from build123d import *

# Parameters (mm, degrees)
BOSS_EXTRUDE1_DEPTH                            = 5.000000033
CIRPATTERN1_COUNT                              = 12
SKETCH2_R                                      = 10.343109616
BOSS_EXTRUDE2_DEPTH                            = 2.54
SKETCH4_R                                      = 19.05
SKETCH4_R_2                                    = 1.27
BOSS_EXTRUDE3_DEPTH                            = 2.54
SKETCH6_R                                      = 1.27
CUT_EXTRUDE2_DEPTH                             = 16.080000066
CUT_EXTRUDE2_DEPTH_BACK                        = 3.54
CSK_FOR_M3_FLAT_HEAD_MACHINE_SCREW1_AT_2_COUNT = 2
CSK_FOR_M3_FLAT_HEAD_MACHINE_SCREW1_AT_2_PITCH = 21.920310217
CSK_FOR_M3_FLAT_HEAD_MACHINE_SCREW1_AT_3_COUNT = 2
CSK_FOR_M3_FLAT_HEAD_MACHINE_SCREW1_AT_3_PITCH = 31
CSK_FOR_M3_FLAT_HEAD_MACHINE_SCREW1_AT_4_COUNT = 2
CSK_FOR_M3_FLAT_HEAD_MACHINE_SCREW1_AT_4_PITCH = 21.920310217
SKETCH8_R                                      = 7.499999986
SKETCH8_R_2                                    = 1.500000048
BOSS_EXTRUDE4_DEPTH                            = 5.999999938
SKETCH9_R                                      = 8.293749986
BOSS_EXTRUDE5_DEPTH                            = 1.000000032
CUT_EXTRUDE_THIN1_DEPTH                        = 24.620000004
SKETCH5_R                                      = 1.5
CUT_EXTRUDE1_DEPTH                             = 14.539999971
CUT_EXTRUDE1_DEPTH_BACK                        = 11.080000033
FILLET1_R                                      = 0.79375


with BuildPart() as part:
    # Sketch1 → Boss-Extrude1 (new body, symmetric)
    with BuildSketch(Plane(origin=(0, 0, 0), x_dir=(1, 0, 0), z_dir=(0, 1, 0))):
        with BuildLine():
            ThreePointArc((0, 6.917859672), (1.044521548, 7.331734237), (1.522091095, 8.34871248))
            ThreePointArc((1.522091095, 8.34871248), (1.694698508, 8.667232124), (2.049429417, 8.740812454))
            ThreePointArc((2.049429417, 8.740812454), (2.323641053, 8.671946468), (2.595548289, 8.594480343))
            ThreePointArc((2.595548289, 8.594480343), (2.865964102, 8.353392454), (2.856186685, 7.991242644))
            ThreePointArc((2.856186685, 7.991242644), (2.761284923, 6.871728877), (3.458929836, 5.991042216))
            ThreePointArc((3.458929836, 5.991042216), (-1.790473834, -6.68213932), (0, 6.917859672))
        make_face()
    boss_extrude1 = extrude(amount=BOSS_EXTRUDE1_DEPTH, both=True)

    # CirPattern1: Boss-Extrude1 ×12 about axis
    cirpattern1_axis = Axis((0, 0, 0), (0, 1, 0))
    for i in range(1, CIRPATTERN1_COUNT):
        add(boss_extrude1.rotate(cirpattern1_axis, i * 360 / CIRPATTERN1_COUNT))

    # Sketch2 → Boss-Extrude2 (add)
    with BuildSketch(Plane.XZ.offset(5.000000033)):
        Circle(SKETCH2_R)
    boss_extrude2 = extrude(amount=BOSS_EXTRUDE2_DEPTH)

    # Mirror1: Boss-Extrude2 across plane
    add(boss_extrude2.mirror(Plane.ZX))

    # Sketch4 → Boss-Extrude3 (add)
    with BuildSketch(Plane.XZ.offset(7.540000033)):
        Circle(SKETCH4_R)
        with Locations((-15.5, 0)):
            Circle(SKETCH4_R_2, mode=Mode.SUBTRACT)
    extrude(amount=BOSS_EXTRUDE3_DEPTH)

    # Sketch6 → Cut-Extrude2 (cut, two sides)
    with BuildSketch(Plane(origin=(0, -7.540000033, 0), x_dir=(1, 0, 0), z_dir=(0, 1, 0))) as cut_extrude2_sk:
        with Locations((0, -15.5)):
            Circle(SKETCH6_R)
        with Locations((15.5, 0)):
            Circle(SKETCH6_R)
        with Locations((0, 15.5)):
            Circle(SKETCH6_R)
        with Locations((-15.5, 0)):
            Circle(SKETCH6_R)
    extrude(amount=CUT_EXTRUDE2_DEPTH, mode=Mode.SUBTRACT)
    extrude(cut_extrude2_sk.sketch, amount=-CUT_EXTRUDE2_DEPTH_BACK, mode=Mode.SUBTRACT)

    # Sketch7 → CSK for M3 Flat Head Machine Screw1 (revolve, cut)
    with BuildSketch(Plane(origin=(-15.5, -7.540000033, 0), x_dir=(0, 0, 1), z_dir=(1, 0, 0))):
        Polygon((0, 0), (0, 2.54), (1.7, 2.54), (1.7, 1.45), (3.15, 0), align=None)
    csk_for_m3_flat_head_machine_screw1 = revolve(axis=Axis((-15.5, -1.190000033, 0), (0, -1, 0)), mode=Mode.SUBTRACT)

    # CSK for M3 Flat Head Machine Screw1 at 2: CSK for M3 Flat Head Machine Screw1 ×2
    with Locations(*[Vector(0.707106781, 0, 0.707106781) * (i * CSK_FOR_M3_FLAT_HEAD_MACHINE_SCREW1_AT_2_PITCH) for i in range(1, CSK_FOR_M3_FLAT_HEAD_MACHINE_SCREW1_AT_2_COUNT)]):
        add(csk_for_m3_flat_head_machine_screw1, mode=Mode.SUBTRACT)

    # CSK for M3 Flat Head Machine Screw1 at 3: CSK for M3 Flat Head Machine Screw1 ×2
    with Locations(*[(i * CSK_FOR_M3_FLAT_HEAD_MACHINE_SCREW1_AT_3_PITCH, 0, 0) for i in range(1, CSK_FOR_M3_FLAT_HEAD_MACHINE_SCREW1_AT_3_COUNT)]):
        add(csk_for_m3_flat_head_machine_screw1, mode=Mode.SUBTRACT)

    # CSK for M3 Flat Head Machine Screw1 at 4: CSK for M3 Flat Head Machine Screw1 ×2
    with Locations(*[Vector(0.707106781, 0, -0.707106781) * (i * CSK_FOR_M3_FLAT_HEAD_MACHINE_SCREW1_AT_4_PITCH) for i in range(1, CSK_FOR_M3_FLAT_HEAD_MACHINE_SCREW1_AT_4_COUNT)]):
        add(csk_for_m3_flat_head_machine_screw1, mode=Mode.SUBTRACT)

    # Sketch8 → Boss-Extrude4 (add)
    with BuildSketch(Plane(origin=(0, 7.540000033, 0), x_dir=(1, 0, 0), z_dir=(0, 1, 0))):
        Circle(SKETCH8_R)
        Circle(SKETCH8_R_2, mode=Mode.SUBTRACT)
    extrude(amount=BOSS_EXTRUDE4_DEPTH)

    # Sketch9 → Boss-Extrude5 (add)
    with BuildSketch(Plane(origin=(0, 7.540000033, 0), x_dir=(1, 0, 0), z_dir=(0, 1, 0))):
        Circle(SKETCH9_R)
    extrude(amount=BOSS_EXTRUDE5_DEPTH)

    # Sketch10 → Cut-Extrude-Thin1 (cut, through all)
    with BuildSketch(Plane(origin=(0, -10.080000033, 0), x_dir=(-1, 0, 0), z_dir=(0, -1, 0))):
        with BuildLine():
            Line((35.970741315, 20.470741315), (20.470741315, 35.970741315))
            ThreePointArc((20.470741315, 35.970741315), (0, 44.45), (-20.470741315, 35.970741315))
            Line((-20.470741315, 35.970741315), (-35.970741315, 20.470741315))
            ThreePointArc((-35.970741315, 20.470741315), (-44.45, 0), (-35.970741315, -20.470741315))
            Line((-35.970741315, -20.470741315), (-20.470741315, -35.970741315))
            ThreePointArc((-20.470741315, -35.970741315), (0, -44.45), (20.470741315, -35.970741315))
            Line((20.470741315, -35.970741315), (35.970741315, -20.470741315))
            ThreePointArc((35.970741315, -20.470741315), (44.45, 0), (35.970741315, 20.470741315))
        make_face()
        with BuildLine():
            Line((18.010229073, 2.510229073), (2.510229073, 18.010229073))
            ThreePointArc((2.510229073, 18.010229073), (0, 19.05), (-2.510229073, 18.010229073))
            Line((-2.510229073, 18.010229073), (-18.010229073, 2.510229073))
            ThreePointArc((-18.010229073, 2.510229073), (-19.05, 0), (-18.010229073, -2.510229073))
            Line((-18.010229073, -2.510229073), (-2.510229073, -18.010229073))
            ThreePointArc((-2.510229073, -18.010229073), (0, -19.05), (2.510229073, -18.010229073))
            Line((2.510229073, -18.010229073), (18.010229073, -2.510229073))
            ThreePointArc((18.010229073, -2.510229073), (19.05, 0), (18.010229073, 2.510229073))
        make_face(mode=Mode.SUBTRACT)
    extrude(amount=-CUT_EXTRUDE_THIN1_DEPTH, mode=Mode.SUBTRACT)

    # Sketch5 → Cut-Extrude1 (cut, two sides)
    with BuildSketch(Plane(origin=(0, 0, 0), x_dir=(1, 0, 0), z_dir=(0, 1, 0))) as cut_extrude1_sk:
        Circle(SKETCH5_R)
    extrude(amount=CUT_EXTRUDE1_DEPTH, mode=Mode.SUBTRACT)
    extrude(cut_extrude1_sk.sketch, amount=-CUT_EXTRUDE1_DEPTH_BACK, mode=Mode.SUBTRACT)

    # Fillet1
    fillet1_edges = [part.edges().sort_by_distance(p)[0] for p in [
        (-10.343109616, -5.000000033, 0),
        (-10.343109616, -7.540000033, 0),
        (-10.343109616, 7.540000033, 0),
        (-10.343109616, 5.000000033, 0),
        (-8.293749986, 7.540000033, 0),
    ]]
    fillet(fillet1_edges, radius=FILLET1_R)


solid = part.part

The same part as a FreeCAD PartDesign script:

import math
import FreeCAD as App
import Part
import Sketcher
from FreeCAD import Vector
Q = App.Units.Quantity


def edges_at(feature, points):
    """Names of the edges that pass closest to the given points."""
    edges = feature.Shape.Edges
    near = lambda p: min(range(len(edges)), key=lambda i: edges[i].distToShape(Part.Vertex(*p))[0])
    return sorted({f"Edge{near(p) + 1}" for p in points})

doc = App.newDocument("Part")
body = doc.addObject("PartDesign::Body", "Body")

# Sketch on XZ plane
sketch1 = body.newObject("Sketcher::SketchObject", "Sketch")
sketch1.AttachmentSupport = (doc.getObject("XZ_Plane"), [""])
sketch1.MapMode = "FlatFace"
sketch1.addGeometry([
    Part.ArcOfCircle(Part.Circle(Vector(0, -8.44, 0), Vector(0, 0, 1), 1.52), math.radians(4), math.radians(90)),  # 0
    Part.ArcOfCircle(Part.Circle(Vector(0, 0, 0), Vector(0, 0, 1), 6.92), math.radians(-60), math.radians(270)),  # 1
    Part.ArcOfCircle(Part.Circle(Vector(4.22, -7.31, 0), Vector(0, 0, 1), 1.52), math.radians(120), math.radians(206)),  # 2
    Part.ArcOfCircle(Part.Circle(Vector(2.47, -8.18, 0), Vector(0, 0, 1), 0.43), math.radians(-73), math.radians(26)),  # 3
    Part.ArcOfCircle(Part.Circle(Vector(0, 0, 0), Vector(0, 0, 1), 8.98), math.radians(-76.8), math.radians(-73.2)),  # 4
    Part.ArcOfCircle(Part.Circle(Vector(1.95, -8.32, 0), Vector(0, 0, 1), 0.43), math.radians(-176), math.radians(-77)),  # 5
], False)
sketch1.addConstraint([
    Sketcher.Constraint("Tangent", 0, 2, 1, 2),
    Sketcher.Constraint("Tangent", 1, 1, 2, 1),
    Sketcher.Constraint("Tangent", 2, 2, 3, 2),
    Sketcher.Constraint("Tangent", 3, 1, 4, 2),
    Sketcher.Constraint("Tangent", 4, 1, 5, 2),
    Sketcher.Constraint("Tangent", 5, 1, 0, 1),
    Sketcher.Constraint("Coincident", 1, 3, -1, 1),
    Sketcher.Constraint("Coincident", 4, 3, -1, 1),
    Sketcher.Constraint("Equal", 0, 2),
    Sketcher.Constraint("Equal", 3, 5),
    Sketcher.Constraint("PointOnObject", 0, 3, -2),
    Sketcher.Constraint("Radius", 3, 0.43),
    Sketcher.Constraint("Radius", 0, 1.525),
    Sketcher.Constraint("Radius", 1, 6.91786),
    Sketcher.Constraint("Radius", 4, 8.97786),
    Sketcher.Constraint("DistanceX", 1, 1, 2, 3, 0.7625),
])
pad1 = body.newObject("PartDesign::Pad", "Pad")
pad1.Profile = sketch1
pad1.Length = 10
pad1.Midplane = True
doc.recompute()

polarpattern = body.newObject("PartDesign::PolarPattern", "PolarPattern")
polarpattern.Originals = [pad1]
polarpattern.Axis = (doc.getObject("Y_Axis"), [""])
polarpattern.Angle = 360
polarpattern.Occurrences = 12
body.Tip = polarpattern

# Sketch on XZ plane
sketch2 = body.newObject("Sketcher::SketchObject", "Sketch001")
sketch2.AttachmentSupport = (doc.getObject("XZ_Plane"), [""])
sketch2.MapMode = "FlatFace"
sketch2.AttachmentOffset = App.Placement(Vector(0, 0, 5), App.Rotation())
sketch2.addGeometry(Part.Circle(Vector(0, 0, 0), Vector(0, 0, 1), 10), False)
sketch2.addConstraint([
    Sketcher.Constraint("Coincident", 0, 3, -1, 1),
    Sketcher.Constraint("Diameter", 0, 20.686219),
])
pad2 = body.newObject("PartDesign::Pad", "Pad001")
pad2.Profile = sketch2
pad2.Length = 2.54
doc.recompute()

mirrored = body.newObject("PartDesign::Mirrored", "Mirrored")
mirrored.Originals = [pad2]
mirrored.MirrorPlane = (doc.getObject("XZ_Plane"), [""])
body.Tip = mirrored

# Sketch on XZ plane
sketch3 = body.newObject("Sketcher::SketchObject", "Sketch002")
sketch3.AttachmentSupport = (doc.getObject("XZ_Plane"), [""])
sketch3.MapMode = "FlatFace"
sketch3.AttachmentOffset = App.Placement(Vector(0, 0, 7.54), App.Rotation())
sketch3.addGeometry([
    Part.Circle(Vector(0, 0, 0), Vector(0, 0, 1), 19.1),
    Part.Circle(Vector(-15.5, 0, 0), Vector(0, 0, 1), 1.3),
], False)
sketch3.addConstraint([
    Sketcher.Constraint("Coincident", 0, 3, -1, 1),
    Sketcher.Constraint("PointOnObject", 1, 3, -1),
    Sketcher.Constraint("Diameter", 0, 38.1),
    Sketcher.Constraint("Diameter", 1, 2.54),
    Sketcher.Constraint("DistanceX", 1, 3, -1, 1, 15.5),
])
pad3 = body.newObject("PartDesign::Pad", "Pad002")
pad3.Profile = sketch3
pad3.Length = 2.54

# Sketch on XZ plane
sketch4 = body.newObject("Sketcher::SketchObject", "Sketch003")
sketch4.AttachmentSupport = (doc.getObject("XZ_Plane"), [""])
sketch4.MapMode = "FlatFace"
sketch4.AttachmentOffset = App.Placement(Vector(0, 0, 7.54), App.Rotation())
sketch4.addGeometry([
    Part.Circle(Vector(0, 15.5, 0), Vector(0, 0, 1), 1.3),
    Part.Circle(Vector(15.5, 0, 0), Vector(0, 0, 1), 1.3),
    Part.Circle(Vector(0, -15.5, 0), Vector(0, 0, 1), 1.3),
    Part.Circle(Vector(-15.5, 0, 0), Vector(0, 0, 1), 1.3),
], False)
sketch4.addConstraint([
    Sketcher.Constraint("Equal", 0, 1),
    Sketcher.Constraint("Equal", 1, 2),
    Sketcher.Constraint("Equal", 2, 3),
    Sketcher.Constraint("Symmetric", 0, 3, 2, 3, -1, 1),
    Sketcher.Constraint("Symmetric", 1, 3, 3, 3, -1, 1),
    Sketcher.Constraint("PointOnObject", 0, 3, -2),
    Sketcher.Constraint("PointOnObject", 1, 3, -1),
    Sketcher.Constraint("Diameter", 0, 2.54),
    Sketcher.Constraint("DistanceY", 2, 3, 0, 3, 31.0),
    Sketcher.Constraint("DistanceX", 3, 3, 1, 3, 31.0),
])
pocket1 = body.newObject("PartDesign::Pocket", "Pocket")
pocket1.Profile = sketch4
pocket1.Type = "ThroughAll"
pocket1.Midplane = True

# Sketch on YZ plane
sketch5 = body.newObject("Sketcher::SketchObject", "Sketch004")
sketch5.AttachmentSupport = (doc.getObject("YZ_Plane"), [""])
sketch5.MapMode = "FlatFace"
sketch5.AttachmentOffset = App.Placement(Vector(0, 0, -15.5), App.Rotation())
sketch5.addGeometry([
    Part.LineSegment(Vector(-10.1, 0, 0), Vector(-7.5, 0, 0)),  # 0
    Part.LineSegment(Vector(-7.5, 0, 0), Vector(-7.5, 3.1, 0)),  # 1
    Part.LineSegment(Vector(-7.5, 3.1, 0), Vector(-9, 1.7, 0)),  # 2
    Part.LineSegment(Vector(-9, 1.7, 0), Vector(-10.1, 1.7, 0)),  # 3
    Part.LineSegment(Vector(-10.1, 1.7, 0), Vector(-10.1, 0, 0)),  # 4
], False)
sketch5.addConstraint([
    Sketcher.Constraint("Coincident", 0, 2, 1, 1),
    Sketcher.Constraint("Coincident", 1, 2, 2, 1),
    Sketcher.Constraint("Coincident", 2, 2, 3, 1),
    Sketcher.Constraint("Coincident", 3, 2, 4, 1),
    Sketcher.Constraint("Coincident", 4, 2, 0, 1),
    Sketcher.Constraint("Horizontal", 0),
    Sketcher.Constraint("Vertical", 1),
    Sketcher.Constraint("Horizontal", 3),
    Sketcher.Constraint("Vertical", 4),
    Sketcher.Constraint("PointOnObject", 0, 2, -1),
    Sketcher.Constraint("Angle", 2, Q("-135 deg")),
    Sketcher.Constraint("DistanceY", 4, 2, 4, 1, 1.7),
    Sketcher.Constraint("DistanceX", 0, 1, 0, 2, 2.54),
    Sketcher.Constraint("DistanceX", 3, 2, 3, 1, 1.09),
    Sketcher.Constraint("DistanceX", 0, 2, -1, 1, 7.54),
])
groove = body.newObject("PartDesign::Groove", "Groove")
groove.Profile = sketch5
groove.ReferenceAxis = (sketch5, ["H_Axis"])
groove.Angle = 360
doc.recompute()

datumline = body.newObject("PartDesign::Line", "DatumLine")
datumline.Placement = App.Placement(Vector(0, 0, 0), App.Rotation(Vector(0, 0, 1), Vector(0.707106781, 0, 0.707106781)))
linearpattern = body.newObject("PartDesign::LinearPattern", "LinearPattern")
linearpattern.Originals = [groove]
linearpattern.Direction = (datumline, [""])
linearpattern.Mode = "offset"
linearpattern.Offset = 21.92031
linearpattern.Occurrences = 2
body.Tip = linearpattern
doc.recompute()

linearpattern2 = body.newObject("PartDesign::LinearPattern", "LinearPattern001")
linearpattern2.Originals = [groove]
linearpattern2.Direction = (doc.getObject("X_Axis"), [""])
linearpattern2.Mode = "offset"
linearpattern2.Offset = 31
linearpattern2.Occurrences = 2
body.Tip = linearpattern2
doc.recompute()

datumline2 = body.newObject("PartDesign::Line", "DatumLine001")
datumline2.Placement = App.Placement(Vector(0, 0, 0), App.Rotation(Vector(0, 0, 1), Vector(0.707106781, 0, -0.707106781)))
linearpattern3 = body.newObject("PartDesign::LinearPattern", "LinearPattern002")
linearpattern3.Originals = [groove]
linearpattern3.Direction = (datumline2, [""])
linearpattern3.Mode = "offset"
linearpattern3.Offset = 21.92031
linearpattern3.Occurrences = 2
body.Tip = linearpattern3

# Sketch on XZ plane
sketch6 = body.newObject("Sketcher::SketchObject", "Sketch005")
sketch6.AttachmentSupport = (doc.getObject("XZ_Plane"), [""])
sketch6.MapMode = "FlatFace"
sketch6.AttachmentOffset = App.Placement(Vector(0, 0, -7.54), App.Rotation())
sketch6.addGeometry([
    Part.Circle(Vector(0, 0, 0), Vector(0, 0, 1), 7.5),
    Part.Circle(Vector(0, 0, 0), Vector(0, 0, 1), 1.5),
], False)
sketch6.addConstraint([
    Sketcher.Constraint("Coincident", 0, 3, -1, 1),
    Sketcher.Constraint("Coincident", 1, 3, -1, 1),
    Sketcher.Constraint("Diameter", 0, 15.0),
    Sketcher.Constraint("Diameter", 1, 3.0),
])
pad4 = body.newObject("PartDesign::Pad", "Pad003")
pad4.Profile = sketch6
pad4.Length = 6
pad4.Reversed = True

# Sketch on XZ plane
sketch7 = body.newObject("Sketcher::SketchObject", "Sketch006")
sketch7.AttachmentSupport = (doc.getObject("XZ_Plane"), [""])
sketch7.MapMode = "FlatFace"
sketch7.AttachmentOffset = App.Placement(Vector(0, 0, -7.54), App.Rotation())
sketch7.addGeometry(Part.Circle(Vector(0, 0, 0), Vector(0, 0, 1), 8), False)
sketch7.addConstraint([
    Sketcher.Constraint("Coincident", 0, 3, -1, 1),
    Sketcher.Constraint("Diameter", 0, 16.5875),
])
pad5 = body.newObject("PartDesign::Pad", "Pad004")
pad5.Profile = sketch7
pad5.Length = 1
pad5.Reversed = True

# Sketch on XZ plane
sketch8 = body.newObject("Sketcher::SketchObject", "Sketch007")
sketch8.AttachmentSupport = (doc.getObject("XZ_Plane"), [""])
sketch8.MapMode = "FlatFace"
sketch8.AttachmentOffset = App.Placement(Vector(0, 0, 10.08), App.Rotation())
sketch8.addGeometry([
    Part.LineSegment(Vector(-36, -20.5, 0), Vector(-20.5, -36, 0)),  # 0
    Part.ArcOfCircle(Part.Circle(Vector(0, -15.5, 0), Vector(0, 0, 1), 28.9), math.radians(-135), math.radians(-45)),  # 1
    Part.LineSegment(Vector(20.5, -36, 0), Vector(36, -20.5, 0)),  # 2
    Part.ArcOfCircle(Part.Circle(Vector(15.5, 0, 0), Vector(0, 0, 1), 28.9), math.radians(-45), math.radians(45)),  # 3
    Part.LineSegment(Vector(36, 20.5, 0), Vector(20.5, 36, 0)),  # 4
    Part.ArcOfCircle(Part.Circle(Vector(0, 15.5, 0), Vector(0, 0, 1), 28.9), math.radians(45), math.radians(135)),  # 5
    Part.LineSegment(Vector(-20.5, 36, 0), Vector(-36, 20.5, 0)),  # 6
    Part.ArcOfCircle(Part.Circle(Vector(-15.5, 0, 0), Vector(0, 0, 1), 28.9), math.radians(135), math.radians(225)),  # 7
    Part.LineSegment(Vector(-2.5, -18, 0), Vector(-18, -2.5, 0)),  # 8
    Part.ArcOfCircle(Part.Circle(Vector(-15.5, 0, 0), Vector(0, 0, 1), 3.5), math.radians(135), math.radians(225)),  # 9
    Part.LineSegment(Vector(-18, 2.5, 0), Vector(-2.5, 18, 0)),  # 10
    Part.ArcOfCircle(Part.Circle(Vector(0, 15.5, 0), Vector(0, 0, 1), 3.5), math.radians(45), math.radians(135)),  # 11
    Part.LineSegment(Vector(2.5, 18, 0), Vector(18, 2.5, 0)),  # 12
    Part.ArcOfCircle(Part.Circle(Vector(15.5, 0, 0), Vector(0, 0, 1), 3.5), math.radians(-45), math.radians(45)),  # 13
    Part.LineSegment(Vector(18, -2.5, 0), Vector(2.5, -18, 0)),  # 14
    Part.ArcOfCircle(Part.Circle(Vector(0, -15.5, 0), Vector(0, 0, 1), 3.5), math.radians(-135), math.radians(-45)),  # 15
], False)
sketch8.addConstraint([
    Sketcher.Constraint("Tangent", 0, 2, 1, 1),
    Sketcher.Constraint("Tangent", 1, 2, 2, 1),
    Sketcher.Constraint("Tangent", 2, 2, 3, 1),
    Sketcher.Constraint("Tangent", 3, 2, 4, 1),
    Sketcher.Constraint("Tangent", 4, 2, 5, 1),
    Sketcher.Constraint("Tangent", 5, 2, 6, 1),
    Sketcher.Constraint("Tangent", 6, 2, 7, 1),
    Sketcher.Constraint("Tangent", 7, 2, 0, 1),
    Sketcher.Constraint("Tangent", 8, 2, 9, 2),
    Sketcher.Constraint("Tangent", 9, 1, 10, 1),
    Sketcher.Constraint("Tangent", 10, 2, 11, 2),
    Sketcher.Constraint("Tangent", 11, 1, 12, 1),
    Sketcher.Constraint("Tangent", 12, 2, 13, 2),
    Sketcher.Constraint("Tangent", 13, 1, 14, 1),
    Sketcher.Constraint("Tangent", 14, 2, 15, 2),
    Sketcher.Constraint("Tangent", 15, 1, 8, 1),
    Sketcher.Constraint("Coincident", 9, 3, 7, 3),
    Sketcher.Constraint("Coincident", 11, 3, 5, 3),
    Sketcher.Constraint("Coincident", 13, 3, 3, 3),
    Sketcher.Constraint("Coincident", 15, 3, 1, 3),
    Sketcher.Constraint("Equal", 1, 3),
    Sketcher.Constraint("Equal", 3, 5),
    Sketcher.Constraint("Equal", 5, 7),
    Sketcher.Constraint("Equal", 9, 11),
    Sketcher.Constraint("Equal", 11, 13),
    Sketcher.Constraint("Equal", 13, 15),
    Sketcher.Constraint("Symmetric", 1, 3, 5, 3, -1, 1),
    Sketcher.Constraint("Symmetric", 3, 3, 7, 3, -1, 1),
    Sketcher.Constraint("Symmetric", 0, 2, 1, 2, -2),
    Sketcher.Constraint("Perpendicular", 0, 2),
    Sketcher.Constraint("Radius", 1, 28.95),
    Sketcher.Constraint("Radius", 9, 3.55),
    Sketcher.Constraint("DistanceY", 1, 3, 5, 3, 31.0),
])
pocket2 = body.newObject("PartDesign::Pocket", "Pocket001")
pocket2.Profile = sketch8
pocket2.Type = "ThroughAll"

# Sketch on XZ plane
sketch9 = body.newObject("Sketcher::SketchObject", "Sketch008")
sketch9.AttachmentSupport = (doc.getObject("XZ_Plane"), [""])
sketch9.MapMode = "FlatFace"
sketch9.addGeometry(Part.Circle(Vector(0, 0, 0), Vector(0, 0, 1), 1.5), False)
sketch9.addConstraint([
    Sketcher.Constraint("Coincident", 0, 3, -1, 1),
    Sketcher.Constraint("Diameter", 0, 3.0),
])
pocket3 = body.newObject("PartDesign::Pocket", "Pocket002")
pocket3.Profile = sketch9
pocket3.Type = "ThroughAll"
pocket3.Midplane = True
doc.recompute()

fillet = body.newObject("PartDesign::Fillet", "Fillet")
fillet.Base = (pocket3, edges_at(pocket3, [
    (-10.343, -5, 0),
    (-10.343, -7.54, 0),
    (-10.343, 7.54, 0),
    (-10.343, 5, 0),
    (-8.294, 7.54, 0),
]))
fillet.Radius = 0.79375

doc.recompute()
